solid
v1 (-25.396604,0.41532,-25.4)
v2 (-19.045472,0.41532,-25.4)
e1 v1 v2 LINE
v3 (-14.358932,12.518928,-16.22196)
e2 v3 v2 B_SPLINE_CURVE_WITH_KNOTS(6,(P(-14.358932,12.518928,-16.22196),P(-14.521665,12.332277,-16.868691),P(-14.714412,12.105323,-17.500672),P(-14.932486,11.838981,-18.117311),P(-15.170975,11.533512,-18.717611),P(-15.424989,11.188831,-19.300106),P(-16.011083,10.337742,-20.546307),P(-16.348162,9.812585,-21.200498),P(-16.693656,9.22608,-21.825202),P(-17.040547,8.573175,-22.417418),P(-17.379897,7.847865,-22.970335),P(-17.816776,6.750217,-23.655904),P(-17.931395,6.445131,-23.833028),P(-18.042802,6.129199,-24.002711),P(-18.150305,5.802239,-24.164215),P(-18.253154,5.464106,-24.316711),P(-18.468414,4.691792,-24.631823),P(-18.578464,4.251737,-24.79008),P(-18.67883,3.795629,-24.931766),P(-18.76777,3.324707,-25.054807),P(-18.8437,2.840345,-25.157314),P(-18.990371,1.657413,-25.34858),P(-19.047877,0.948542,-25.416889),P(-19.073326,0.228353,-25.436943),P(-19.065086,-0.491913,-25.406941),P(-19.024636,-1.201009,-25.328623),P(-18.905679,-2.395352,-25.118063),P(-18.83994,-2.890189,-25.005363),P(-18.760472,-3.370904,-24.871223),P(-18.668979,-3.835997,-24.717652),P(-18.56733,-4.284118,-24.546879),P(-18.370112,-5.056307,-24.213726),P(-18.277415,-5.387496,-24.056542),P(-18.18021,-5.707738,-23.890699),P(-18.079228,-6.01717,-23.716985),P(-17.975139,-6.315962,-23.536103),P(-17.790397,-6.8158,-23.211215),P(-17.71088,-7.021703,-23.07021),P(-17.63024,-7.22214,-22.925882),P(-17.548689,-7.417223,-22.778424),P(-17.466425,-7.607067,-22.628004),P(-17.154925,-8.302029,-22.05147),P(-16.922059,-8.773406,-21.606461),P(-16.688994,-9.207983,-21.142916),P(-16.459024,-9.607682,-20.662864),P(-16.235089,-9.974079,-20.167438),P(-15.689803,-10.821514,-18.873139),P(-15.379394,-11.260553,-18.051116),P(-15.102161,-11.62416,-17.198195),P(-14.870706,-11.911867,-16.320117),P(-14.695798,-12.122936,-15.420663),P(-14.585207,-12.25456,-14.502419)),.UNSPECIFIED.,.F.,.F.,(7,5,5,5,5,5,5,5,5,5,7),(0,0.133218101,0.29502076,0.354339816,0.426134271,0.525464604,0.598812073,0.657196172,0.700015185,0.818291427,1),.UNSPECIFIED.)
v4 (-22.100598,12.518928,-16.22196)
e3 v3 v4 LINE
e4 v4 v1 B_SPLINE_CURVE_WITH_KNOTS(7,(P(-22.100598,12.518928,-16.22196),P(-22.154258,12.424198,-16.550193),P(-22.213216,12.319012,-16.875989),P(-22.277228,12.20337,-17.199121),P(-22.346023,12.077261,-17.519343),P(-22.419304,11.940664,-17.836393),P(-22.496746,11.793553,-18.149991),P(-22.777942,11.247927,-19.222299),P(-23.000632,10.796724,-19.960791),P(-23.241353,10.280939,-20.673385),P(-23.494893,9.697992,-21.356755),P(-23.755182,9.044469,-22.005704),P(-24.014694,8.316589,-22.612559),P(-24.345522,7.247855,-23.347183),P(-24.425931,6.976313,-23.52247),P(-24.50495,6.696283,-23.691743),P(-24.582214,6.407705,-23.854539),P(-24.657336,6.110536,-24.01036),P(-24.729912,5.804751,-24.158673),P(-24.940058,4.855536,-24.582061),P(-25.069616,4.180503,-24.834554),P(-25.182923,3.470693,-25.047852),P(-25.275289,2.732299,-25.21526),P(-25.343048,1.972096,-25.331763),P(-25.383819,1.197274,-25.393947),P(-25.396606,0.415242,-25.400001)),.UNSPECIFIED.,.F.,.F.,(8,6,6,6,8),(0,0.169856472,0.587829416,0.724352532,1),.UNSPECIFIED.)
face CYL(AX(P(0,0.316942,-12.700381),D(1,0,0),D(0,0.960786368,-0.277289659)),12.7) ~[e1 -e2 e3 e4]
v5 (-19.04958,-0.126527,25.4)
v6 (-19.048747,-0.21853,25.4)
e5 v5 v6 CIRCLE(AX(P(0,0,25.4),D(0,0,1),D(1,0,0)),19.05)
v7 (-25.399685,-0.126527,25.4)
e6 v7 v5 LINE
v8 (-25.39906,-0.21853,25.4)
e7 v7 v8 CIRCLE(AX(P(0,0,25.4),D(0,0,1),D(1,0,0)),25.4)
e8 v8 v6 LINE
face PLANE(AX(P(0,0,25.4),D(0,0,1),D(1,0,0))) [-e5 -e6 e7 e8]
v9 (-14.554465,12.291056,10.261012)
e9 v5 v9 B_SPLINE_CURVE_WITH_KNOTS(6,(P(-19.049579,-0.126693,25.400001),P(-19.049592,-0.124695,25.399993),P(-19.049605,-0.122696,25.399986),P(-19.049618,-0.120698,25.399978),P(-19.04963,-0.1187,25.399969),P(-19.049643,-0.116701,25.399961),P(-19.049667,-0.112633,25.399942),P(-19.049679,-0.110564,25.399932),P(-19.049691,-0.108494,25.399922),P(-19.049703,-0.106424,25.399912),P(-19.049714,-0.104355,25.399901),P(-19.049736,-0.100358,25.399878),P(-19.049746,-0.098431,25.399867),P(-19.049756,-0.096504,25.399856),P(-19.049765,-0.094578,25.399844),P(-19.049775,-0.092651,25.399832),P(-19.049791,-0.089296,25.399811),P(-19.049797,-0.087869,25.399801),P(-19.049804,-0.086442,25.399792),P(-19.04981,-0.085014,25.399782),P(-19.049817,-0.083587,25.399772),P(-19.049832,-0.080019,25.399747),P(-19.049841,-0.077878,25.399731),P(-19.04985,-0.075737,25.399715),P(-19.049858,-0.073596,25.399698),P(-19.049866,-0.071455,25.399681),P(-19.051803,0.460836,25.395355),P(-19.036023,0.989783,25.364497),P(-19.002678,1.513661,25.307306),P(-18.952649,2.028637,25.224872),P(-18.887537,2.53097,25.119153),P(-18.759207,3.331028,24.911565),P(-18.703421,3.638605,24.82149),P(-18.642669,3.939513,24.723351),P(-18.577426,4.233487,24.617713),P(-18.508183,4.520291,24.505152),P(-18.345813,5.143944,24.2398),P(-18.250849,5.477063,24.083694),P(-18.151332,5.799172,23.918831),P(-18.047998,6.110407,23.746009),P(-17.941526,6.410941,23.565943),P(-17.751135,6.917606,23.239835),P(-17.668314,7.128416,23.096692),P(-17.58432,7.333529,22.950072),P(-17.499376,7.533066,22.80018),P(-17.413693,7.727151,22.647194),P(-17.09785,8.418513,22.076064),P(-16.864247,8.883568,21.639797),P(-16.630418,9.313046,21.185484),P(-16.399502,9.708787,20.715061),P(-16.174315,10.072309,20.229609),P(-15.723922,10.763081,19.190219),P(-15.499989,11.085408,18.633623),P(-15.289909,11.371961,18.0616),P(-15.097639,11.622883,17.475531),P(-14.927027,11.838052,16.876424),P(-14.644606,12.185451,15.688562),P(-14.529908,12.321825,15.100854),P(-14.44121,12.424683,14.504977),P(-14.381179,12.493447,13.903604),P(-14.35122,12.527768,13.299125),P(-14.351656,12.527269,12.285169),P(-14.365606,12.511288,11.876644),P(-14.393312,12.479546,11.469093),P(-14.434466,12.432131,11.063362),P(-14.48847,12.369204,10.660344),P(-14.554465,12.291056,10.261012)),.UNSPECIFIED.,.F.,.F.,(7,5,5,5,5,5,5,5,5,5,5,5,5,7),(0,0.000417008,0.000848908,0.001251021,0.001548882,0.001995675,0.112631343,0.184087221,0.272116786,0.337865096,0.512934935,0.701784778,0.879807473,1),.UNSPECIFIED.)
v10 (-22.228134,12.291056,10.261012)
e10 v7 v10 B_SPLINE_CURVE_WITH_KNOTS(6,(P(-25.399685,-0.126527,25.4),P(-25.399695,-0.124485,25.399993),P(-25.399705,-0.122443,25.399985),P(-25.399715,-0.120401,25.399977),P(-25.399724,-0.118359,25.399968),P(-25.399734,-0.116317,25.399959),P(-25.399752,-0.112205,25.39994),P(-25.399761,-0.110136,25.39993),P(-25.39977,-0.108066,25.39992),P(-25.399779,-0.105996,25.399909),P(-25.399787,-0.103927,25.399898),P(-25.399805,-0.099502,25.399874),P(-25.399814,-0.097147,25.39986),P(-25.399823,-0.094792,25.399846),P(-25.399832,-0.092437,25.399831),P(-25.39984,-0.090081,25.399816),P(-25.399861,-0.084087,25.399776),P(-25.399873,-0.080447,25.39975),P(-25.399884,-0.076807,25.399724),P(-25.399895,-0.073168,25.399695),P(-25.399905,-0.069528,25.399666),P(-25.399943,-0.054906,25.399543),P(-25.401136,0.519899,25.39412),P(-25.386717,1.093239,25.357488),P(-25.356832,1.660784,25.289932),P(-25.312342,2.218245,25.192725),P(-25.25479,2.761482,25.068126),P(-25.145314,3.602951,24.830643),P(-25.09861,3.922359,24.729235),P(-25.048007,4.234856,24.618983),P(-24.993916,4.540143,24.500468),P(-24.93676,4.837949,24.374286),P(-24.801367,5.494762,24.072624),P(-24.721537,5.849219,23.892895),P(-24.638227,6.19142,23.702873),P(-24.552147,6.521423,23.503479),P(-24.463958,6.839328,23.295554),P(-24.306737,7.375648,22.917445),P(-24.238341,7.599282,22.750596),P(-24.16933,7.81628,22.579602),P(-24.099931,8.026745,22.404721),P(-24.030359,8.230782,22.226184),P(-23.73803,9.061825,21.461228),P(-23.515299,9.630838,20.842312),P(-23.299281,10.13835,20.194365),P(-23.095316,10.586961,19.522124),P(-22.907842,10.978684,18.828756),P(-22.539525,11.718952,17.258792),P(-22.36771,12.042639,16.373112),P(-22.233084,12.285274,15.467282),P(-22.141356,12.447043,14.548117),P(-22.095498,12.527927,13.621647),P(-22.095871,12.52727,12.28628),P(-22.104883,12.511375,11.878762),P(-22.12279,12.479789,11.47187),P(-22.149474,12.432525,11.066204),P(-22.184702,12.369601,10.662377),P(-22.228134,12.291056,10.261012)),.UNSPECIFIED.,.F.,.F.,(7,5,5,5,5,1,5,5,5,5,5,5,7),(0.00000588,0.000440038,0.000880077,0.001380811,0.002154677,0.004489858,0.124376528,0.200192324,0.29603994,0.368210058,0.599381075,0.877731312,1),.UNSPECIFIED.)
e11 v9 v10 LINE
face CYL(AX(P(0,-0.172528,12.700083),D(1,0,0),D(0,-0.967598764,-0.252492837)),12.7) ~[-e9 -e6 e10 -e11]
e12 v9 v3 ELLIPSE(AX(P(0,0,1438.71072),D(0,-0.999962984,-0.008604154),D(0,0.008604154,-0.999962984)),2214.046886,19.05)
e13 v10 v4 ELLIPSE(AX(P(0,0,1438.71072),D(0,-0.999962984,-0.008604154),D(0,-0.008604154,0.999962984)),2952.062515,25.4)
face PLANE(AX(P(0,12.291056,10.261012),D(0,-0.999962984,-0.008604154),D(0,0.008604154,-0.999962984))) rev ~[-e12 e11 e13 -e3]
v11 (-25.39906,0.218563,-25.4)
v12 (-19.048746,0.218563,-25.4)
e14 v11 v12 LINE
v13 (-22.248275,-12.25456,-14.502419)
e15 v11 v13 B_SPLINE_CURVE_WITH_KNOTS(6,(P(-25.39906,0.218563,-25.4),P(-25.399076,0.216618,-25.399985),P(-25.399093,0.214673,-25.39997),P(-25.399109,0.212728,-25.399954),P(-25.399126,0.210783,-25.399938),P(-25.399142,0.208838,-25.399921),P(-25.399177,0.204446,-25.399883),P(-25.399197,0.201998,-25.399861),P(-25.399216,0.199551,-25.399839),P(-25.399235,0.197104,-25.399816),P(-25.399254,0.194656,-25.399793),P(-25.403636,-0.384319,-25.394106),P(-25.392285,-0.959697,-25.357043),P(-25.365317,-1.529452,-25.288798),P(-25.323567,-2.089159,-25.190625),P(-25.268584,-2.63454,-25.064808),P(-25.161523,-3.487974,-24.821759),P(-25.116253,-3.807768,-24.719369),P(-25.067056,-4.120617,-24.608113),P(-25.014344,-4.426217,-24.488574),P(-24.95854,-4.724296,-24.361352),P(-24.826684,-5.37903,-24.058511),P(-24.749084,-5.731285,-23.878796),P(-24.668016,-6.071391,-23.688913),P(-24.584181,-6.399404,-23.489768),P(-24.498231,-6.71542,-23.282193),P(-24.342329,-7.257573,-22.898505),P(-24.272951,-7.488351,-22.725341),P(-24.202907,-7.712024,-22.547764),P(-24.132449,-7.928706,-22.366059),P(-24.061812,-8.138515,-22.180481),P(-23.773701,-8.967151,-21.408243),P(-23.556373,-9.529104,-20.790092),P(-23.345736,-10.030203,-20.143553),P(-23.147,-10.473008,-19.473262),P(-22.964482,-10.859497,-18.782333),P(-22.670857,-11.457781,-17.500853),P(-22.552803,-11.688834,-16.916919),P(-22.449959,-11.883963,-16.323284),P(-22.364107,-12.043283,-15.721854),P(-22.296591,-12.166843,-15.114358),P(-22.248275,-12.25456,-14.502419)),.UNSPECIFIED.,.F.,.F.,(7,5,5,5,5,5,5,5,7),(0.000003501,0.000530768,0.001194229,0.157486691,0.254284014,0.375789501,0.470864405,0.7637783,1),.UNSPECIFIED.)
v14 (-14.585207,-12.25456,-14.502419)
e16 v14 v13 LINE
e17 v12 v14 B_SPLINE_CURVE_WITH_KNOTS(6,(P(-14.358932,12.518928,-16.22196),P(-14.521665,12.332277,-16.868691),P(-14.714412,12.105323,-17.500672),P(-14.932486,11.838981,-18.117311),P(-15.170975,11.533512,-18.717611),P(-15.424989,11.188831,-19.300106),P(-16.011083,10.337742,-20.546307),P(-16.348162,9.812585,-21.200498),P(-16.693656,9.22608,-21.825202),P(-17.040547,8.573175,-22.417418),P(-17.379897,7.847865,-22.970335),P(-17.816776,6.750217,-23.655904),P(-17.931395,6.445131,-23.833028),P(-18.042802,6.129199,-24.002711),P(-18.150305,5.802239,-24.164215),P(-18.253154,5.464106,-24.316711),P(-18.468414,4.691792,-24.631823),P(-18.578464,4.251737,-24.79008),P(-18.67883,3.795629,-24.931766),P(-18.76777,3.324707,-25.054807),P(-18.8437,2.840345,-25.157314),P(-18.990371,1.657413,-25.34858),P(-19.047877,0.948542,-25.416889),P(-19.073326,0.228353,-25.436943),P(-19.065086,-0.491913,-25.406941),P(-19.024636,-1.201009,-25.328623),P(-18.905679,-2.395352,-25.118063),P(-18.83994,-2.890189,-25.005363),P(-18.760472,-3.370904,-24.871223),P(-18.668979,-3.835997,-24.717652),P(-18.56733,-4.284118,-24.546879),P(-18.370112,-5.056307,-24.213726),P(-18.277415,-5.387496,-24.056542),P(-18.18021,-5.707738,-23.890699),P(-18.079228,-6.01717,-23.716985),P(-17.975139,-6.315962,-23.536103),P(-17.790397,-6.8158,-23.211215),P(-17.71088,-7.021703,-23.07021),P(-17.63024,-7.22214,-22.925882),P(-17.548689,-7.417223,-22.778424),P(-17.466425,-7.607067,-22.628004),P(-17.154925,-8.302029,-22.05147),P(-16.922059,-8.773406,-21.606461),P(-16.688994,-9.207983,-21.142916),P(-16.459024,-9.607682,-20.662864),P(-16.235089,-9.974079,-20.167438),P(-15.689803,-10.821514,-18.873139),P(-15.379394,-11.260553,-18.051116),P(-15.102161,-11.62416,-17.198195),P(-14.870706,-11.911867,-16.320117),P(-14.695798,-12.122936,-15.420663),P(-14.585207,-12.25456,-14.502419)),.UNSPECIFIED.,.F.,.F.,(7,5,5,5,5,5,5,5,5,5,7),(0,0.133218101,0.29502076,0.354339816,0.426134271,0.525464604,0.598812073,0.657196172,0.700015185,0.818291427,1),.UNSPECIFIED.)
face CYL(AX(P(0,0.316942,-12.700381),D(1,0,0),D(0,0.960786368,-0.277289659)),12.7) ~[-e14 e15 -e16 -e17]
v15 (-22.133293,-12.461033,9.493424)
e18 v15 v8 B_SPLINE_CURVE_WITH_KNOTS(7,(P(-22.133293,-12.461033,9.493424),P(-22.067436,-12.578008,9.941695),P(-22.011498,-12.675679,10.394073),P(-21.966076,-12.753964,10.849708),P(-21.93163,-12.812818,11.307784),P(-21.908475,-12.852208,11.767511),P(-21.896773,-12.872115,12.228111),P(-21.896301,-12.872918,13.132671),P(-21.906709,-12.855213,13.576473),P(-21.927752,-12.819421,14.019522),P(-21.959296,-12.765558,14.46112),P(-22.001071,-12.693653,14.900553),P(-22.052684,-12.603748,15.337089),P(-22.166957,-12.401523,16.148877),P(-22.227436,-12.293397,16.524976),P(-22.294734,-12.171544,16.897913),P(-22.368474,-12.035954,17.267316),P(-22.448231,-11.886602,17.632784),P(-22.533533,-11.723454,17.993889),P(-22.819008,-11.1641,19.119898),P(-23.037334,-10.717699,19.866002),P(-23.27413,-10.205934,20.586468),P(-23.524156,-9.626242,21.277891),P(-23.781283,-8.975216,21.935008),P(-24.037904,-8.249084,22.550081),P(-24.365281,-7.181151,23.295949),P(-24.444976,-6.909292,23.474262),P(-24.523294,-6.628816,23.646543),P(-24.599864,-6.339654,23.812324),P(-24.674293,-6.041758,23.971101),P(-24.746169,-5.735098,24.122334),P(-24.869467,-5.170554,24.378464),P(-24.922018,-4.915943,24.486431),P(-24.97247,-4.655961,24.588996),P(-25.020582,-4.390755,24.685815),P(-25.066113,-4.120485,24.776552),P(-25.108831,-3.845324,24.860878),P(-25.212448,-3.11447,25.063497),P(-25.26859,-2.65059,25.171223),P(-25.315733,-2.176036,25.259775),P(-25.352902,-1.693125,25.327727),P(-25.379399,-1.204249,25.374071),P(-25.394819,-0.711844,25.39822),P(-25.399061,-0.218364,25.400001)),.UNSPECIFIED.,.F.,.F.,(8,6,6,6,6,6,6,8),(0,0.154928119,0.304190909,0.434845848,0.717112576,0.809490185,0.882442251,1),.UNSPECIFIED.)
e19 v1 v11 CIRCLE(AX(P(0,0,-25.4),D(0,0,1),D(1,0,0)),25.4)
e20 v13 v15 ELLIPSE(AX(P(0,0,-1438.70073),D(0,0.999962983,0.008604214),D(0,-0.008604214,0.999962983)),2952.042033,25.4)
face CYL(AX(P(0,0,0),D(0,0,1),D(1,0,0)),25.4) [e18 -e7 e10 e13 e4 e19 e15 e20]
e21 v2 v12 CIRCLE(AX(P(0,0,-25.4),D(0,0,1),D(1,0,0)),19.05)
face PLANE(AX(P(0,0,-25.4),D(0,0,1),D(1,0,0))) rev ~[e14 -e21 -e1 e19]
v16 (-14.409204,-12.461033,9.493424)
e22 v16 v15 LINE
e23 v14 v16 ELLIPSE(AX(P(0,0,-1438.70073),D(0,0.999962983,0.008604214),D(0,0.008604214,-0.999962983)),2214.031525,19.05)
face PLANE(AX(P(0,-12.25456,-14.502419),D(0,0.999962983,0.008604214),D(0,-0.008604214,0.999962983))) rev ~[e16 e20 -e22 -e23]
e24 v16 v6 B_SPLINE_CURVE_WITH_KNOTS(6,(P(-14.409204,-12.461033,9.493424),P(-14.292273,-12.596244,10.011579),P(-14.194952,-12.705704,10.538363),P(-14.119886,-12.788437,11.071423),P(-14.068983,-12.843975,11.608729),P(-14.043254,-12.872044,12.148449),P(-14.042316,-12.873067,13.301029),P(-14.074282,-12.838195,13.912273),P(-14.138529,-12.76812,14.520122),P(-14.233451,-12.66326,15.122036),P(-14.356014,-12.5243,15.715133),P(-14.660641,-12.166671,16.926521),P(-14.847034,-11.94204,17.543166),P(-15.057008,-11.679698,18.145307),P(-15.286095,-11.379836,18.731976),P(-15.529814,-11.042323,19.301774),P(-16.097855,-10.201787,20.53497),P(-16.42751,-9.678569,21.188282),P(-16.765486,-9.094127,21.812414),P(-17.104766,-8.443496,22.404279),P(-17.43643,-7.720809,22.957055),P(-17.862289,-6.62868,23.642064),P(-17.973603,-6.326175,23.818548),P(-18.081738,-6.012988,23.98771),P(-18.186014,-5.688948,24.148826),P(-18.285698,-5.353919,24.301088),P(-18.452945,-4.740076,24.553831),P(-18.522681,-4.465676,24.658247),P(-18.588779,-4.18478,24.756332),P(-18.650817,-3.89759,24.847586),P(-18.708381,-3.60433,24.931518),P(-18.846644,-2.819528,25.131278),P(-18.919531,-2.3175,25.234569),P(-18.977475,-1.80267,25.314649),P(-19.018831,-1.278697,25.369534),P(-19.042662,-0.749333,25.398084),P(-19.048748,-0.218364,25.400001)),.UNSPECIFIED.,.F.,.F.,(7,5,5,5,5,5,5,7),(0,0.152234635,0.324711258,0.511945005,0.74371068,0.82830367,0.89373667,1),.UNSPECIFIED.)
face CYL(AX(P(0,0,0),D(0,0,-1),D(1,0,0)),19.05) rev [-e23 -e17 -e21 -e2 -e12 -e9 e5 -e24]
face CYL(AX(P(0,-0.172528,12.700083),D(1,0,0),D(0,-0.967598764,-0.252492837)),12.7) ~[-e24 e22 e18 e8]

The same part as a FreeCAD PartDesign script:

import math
import FreeCAD as App
import Part
import Sketcher

V = App.Vector
Q = App.Units.Quantity


def add_polygon(sketch, points):
    """Adds a closed chain of lines whose ends are joined by coincident constraints."""
    first, n = sketch.GeometryCount, len(points)
    for a, b in zip(points, points[1:] + points[:1]):
        sketch.addGeometry(Part.LineSegment(App.Vector(*a, 0), App.Vector(*b, 0)), False)
    for i in range(n):
        sketch.addConstraint(Sketcher.Constraint("Coincident", first + i, 2, first + (i + 1) % n, 1))

doc = App.newDocument("Part")
body = doc.addObject("PartDesign::Body", "Body")
body.AllowCompound = True

# Sketch on XY plane
sketch1 = body.newObject("Sketcher::SketchObject", "Sketch")
sketch1.AttachmentSupport = (doc.getObject("XY_Plane"), [""])
sketch1.MapMode = "FlatFace"
sketch1.addGeometry([
    Part.Circle(V(0, 0, 0), V(0, 0, 1), 25),
    Part.Circle(V(0, 0, 0), V(0, 0, 1), 19),
], False)
sketch1.addConstraint([
    Sketcher.Constraint("Coincident", 0, 3, -1, 1),
    Sketcher.Constraint("Coincident", 1, 3, -1, 1),
    Sketcher.Constraint("Diameter", 0, Q("2 in")),
    Sketcher.Constraint("Diameter", 1, Q("1.5 in")),
])
pad1 = body.newObject("PartDesign::Pad", "Pad")
pad1.Profile = sketch1
pad1.Length = Q("2 in")
pad1.Midplane = True

# Sketch on YZ plane
sketch2 = body.newObject("Sketcher::SketchObject", "Sketch001")
sketch2.AttachmentSupport = (doc.getObject("YZ_Plane"), [""])
sketch2.MapMode = "FlatFace"
add_polygon(sketch2, [(-39, 123), (-39, -50), (109, -50), (109, 123)])  # lines 0-3
sketch2.addGeometry(Part.LineSegment(V(-12, -15, 0), V(-12, 9, 0)), False)  # 4
sketch2.addGeometry(Part.ArcOfCircle(Part.Circle(V(0, 13, 0), V(0, 0, 1), 13), math.radians(-11), math.radians(195)), False)  # 5
sketch2.addGeometry(Part.LineSegment(V(12, 10, 0), V(13, -16, 0)), False)  # 6
sketch2.addGeometry(Part.ArcOfCircle(Part.Circle(V(0, -13, 0), V(0, 0, 1), 13), math.radians(-172), math.radians(-16)), False)  # 7
sketch2.addConstraint([
    Sketcher.Constraint("Coincident", 4, 2, 5, 2),
    Sketcher.Constraint("Coincident", 5, 1, 6, 1),
    Sketcher.Constraint("Coincident", 6, 2, 7, 2),
    Sketcher.Constraint("Coincident", 7, 1, 4, 1),
    Sketcher.Constraint("Vertical", 0),
    Sketcher.Constraint("Horizontal", 1),
    Sketcher.Constraint("Vertical", 2),
    Sketcher.Constraint("Horizontal", 3),
    Sketcher.Constraint("Equal", 5, 7),
    Sketcher.Constraint("Parallel", 4, 6),
    Sketcher.Constraint("Radius", 5, Q("0.5 in")),
    Sketcher.Constraint("DistanceY", 0, 2, 0, 1, 173.544198),
    Sketcher.Constraint("DistanceX", -1, 1, 5, 1, Q("0.4838998 in")),
    Sketcher.Constraint("DistanceX", 1, 1, 1, 2, 147.84576),
    Sketcher.Constraint("DistanceX", 0, 2, 5, 3, 38.875399),
    Sketcher.Constraint("DistanceX", 7, 1, 7, 3, 12.571502),
    Sketcher.Constraint("Distance", 4, 23.996731),
    Sketcher.Constraint("DistanceX", 5, 3, -1, 1, 0.172528),
    Sketcher.Constraint("DistanceX", -1, 1, 7, 3, 0.316942),
    Sketcher.Constraint("DistanceY", 7, 3, -1, 1, 12.700381),
    Sketcher.Constraint("DistanceY", 0, 2, -1, 1, 50.169069),
    Sketcher.Constraint("DistanceX", -1, 1, 6, 2, 12.518928),
])
pocket1 = body.newObject("PartDesign::Pocket", "Pocket")
pocket1.Profile = sketch2
pocket1.Length = Q("1 in")

# Sketch on XZ plane
sketch3 = body.newObject("Sketcher::SketchObject", "Sketch002")
sketch3.AttachmentSupport = (doc.getObject("XZ_Plane"), [""])
sketch3.MapMode = "FlatFace"
add_polygon(sketch3, [(-3, 39), (-3, -40), (35, -40), (35, 39)])  # lines 0-3
sketch3.addConstraint([
    Sketcher.Constraint("Vertical", 0),
    Sketcher.Constraint("Horizontal", 1),
    Sketcher.Constraint("Vertical", 2),
    Sketcher.Constraint("Horizontal", 3),
    Sketcher.Constraint("DistanceY", 0, 2, 0, 1, 79.151291),
    Sketcher.Constraint("DistanceX", 1, 1, 1, 2, 37.611994),
    Sketcher.Constraint("DistanceY", -1, 1, 2, 2, 39.235748),
    Sketcher.Constraint("DistanceX", 0, 2, -1, 1, 2.945437),
])
pocket2 = body.newObject("PartDesign::Pocket", "Pocket001")
pocket2.Profile = sketch3
pocket2.Length = Q("21 in")
pocket2.Midplane = True

# Sketch on XZ plane
sketch4 = body.newObject("Sketcher::SketchObject", "Sketch003")
sketch4.AttachmentSupport = (doc.getObject("XZ_Plane"), [""])
sketch4.MapMode = "FlatFace"
add_polygon(sketch4, [(-5, 32), (-5, -41), (37, -41), (37, 32)])  # lines 0-3
sketch4.addConstraint([
    Sketcher.Constraint("Vertical", 0),
    Sketcher.Constraint("Horizontal", 1),
    Sketcher.Constraint("Vertical", 2),
    Sketcher.Constraint("Horizontal", 3),
    Sketcher.Constraint("DistanceX", 0, 2, -1, 1, 5.363899),
    Sketcher.Constraint("DistanceX", 1, 1, 1, 2, 42.609616),
    Sketcher.Constraint("DistanceY", 0, 2, 0, 1, 73.078748),
    Sketcher.Constraint("DistanceY", -1, 1, 2, 2, 32.48835),
])
pocket3 = body.newObject("PartDesign::Pocket", "Pocket002")
pocket3.Profile = sketch4
pocket3.Length = Q("2 in")
pocket3.Midplane = True

doc.recompute()
